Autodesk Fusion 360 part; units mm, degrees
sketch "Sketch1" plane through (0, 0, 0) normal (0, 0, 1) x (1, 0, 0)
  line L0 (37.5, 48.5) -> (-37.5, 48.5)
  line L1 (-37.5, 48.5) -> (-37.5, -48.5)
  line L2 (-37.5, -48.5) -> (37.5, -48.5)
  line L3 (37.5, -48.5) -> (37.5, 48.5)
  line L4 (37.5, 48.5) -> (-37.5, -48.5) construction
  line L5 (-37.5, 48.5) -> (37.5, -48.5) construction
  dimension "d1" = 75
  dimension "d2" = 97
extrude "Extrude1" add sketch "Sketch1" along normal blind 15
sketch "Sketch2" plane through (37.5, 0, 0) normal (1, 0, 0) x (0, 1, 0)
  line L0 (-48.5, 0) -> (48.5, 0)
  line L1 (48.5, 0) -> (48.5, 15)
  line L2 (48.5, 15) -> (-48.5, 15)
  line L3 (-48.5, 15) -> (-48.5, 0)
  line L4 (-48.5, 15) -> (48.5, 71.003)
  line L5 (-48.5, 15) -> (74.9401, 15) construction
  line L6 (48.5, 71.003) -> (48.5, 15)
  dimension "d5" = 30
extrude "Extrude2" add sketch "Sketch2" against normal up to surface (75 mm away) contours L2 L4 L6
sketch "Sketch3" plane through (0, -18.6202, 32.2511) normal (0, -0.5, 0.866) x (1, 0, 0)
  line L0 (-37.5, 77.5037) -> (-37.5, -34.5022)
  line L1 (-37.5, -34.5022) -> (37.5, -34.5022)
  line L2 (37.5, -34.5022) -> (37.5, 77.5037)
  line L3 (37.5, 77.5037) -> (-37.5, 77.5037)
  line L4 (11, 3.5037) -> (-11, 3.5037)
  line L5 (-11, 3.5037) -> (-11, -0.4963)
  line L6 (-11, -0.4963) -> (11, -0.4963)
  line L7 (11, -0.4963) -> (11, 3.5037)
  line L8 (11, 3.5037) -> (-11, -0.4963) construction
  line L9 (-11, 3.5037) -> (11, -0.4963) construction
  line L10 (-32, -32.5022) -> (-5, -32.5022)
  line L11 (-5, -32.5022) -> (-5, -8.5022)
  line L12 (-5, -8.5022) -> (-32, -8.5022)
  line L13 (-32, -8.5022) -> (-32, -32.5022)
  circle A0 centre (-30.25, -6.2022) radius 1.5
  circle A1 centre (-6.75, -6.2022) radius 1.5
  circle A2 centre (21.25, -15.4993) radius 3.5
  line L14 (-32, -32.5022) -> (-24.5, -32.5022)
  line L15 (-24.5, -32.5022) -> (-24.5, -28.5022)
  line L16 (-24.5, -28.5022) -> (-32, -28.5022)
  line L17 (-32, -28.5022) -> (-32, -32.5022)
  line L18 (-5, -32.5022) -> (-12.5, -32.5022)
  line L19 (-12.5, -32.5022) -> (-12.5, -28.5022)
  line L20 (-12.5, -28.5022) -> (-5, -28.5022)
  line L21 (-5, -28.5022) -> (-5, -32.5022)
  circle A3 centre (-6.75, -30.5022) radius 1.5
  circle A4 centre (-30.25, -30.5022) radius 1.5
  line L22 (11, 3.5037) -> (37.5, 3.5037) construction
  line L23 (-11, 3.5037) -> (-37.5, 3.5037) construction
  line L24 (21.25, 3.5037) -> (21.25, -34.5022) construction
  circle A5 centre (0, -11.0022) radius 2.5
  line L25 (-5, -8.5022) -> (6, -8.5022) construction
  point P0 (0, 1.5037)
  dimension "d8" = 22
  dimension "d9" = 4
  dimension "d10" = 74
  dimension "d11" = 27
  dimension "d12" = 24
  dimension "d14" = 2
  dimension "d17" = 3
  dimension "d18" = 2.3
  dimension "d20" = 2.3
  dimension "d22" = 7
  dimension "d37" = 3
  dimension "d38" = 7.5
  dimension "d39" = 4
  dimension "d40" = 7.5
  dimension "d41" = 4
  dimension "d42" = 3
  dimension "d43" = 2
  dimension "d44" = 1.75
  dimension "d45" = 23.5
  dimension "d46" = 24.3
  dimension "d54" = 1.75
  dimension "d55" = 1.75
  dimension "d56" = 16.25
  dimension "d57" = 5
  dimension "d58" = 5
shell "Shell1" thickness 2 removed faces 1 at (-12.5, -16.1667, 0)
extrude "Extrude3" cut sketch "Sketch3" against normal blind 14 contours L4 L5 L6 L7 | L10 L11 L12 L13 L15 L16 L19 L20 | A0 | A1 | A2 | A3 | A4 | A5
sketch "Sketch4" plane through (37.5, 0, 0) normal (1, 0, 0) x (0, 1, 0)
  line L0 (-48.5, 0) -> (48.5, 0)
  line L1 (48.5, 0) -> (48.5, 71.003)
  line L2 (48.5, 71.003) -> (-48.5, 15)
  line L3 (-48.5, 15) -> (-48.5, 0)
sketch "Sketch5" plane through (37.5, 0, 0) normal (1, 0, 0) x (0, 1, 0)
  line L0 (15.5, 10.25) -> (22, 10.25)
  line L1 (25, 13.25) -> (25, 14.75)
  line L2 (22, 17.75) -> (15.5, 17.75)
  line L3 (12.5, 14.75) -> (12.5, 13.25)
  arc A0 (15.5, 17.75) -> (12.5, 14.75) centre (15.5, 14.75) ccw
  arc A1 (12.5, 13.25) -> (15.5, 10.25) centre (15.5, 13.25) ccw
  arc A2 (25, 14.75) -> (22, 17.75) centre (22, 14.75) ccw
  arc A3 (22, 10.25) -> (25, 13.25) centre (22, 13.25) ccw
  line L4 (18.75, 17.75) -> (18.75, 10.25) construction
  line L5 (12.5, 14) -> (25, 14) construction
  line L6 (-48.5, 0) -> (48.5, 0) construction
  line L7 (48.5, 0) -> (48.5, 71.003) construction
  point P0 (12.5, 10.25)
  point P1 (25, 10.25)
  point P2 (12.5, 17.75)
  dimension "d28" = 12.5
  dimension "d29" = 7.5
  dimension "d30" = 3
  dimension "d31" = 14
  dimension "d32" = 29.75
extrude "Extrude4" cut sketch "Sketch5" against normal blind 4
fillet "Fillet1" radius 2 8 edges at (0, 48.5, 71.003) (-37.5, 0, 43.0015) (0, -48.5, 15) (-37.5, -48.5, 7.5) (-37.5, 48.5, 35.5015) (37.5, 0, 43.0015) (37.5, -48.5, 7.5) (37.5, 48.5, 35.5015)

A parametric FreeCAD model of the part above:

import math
import FreeCAD as App
import Part
import Sketcher
Q = App.Units.Quantity


def edges_at(feature, points):
    """Names of the edges that pass closest to the given points."""
    edges = feature.Shape.Edges
    near = lambda p: min(range(len(edges)), key=lambda i: edges[i].distToShape(Part.Vertex(*p))[0])
    return sorted({f"Edge{near(p) + 1}" for p in points})


def faces_at(feature, points):
    """Names of the faces that lie closest to the given points."""
    faces = feature.Shape.Faces
    near = lambda p: min(range(len(faces)), key=lambda i: faces[i].distToShape(Part.Vertex(*p))[0])
    return sorted({f"Face{near(p) + 1}" for p in points})

doc = App.newDocument("Part")
body = doc.addObject("PartDesign::Body", "Body")

sketch1 = body.newObject("Sketcher::SketchObject", "Sketch")
sketch1.AttachmentSupport = (doc.getObject("XY_Plane"), [""])
sketch1.MapMode = "FlatFace"
sketch1.addGeometry([
    Part.LineSegment(App.Vector(38, -48, 0), App.Vector(38, 48, 0)),
    Part.LineSegment(App.Vector(38, 48, 0), App.Vector(-38, 48, 0)),
    Part.LineSegment(App.Vector(-38, 48, 0), App.Vector(-38, -48, 0)),
    Part.LineSegment(App.Vector(-38, -48, 0), App.Vector(38, -48, 0)),
], False)
sketch1.addConstraint([
    Sketcher.Constraint("Coincident", 0, 2, 1, 1),
    Sketcher.Constraint("Coincident", 1, 2, 2, 1),
    Sketcher.Constraint("Coincident", 2, 2, 3, 1),
    Sketcher.Constraint("Coincident", 3, 2, 0, 1),
    Sketcher.Constraint("Vertical", 0),
    Sketcher.Constraint("Horizontal", 1),
    Sketcher.Constraint("Vertical", 2),
    Sketcher.Constraint("Horizontal", 3),
    Sketcher.Constraint("Symmetric", 0, 2, 2, 2, -1, 1),
    Sketcher.Constraint("DistanceX", 1, 2, 1, 1, 75.0),
    Sketcher.Constraint("DistanceY", 0, 1, 0, 2, 97.0),
])
pad1 = body.newObject("PartDesign::Pad", "Pad")
pad1.Profile = sketch1
pad1.Length = 15

sketch2 = body.newObject("Sketcher::SketchObject", "Sketch001")
sketch2.AttachmentSupport = (doc.getObject("YZ_Plane"), [""])
sketch2.MapMode = "FlatFace"
sketch2.AttachmentOffset = App.Placement(App.Vector(0, 0, 37.5), App.Rotation())
sketch2.addGeometry([
    Part.LineSegment(App.Vector(48, 71, 0), App.Vector(-48, 15, 0)),
    Part.LineSegment(App.Vector(-48, 15, 0), App.Vector(48, 15, 0)),
    Part.LineSegment(App.Vector(48, 15, 0), App.Vector(48, 71, 0)),
], False)
sketch2.addConstraint([
    Sketcher.Constraint("Coincident", 0, 2, 1, 1),
    Sketcher.Constraint("Coincident", 1, 2, 2, 1),
    Sketcher.Constraint("Coincident", 2, 2, 0, 1),
    Sketcher.Constraint("Horizontal", 1),
    Sketcher.Constraint("Vertical", 2),
    Sketcher.Constraint("DistanceX", 1, 1, 1, 2, 97.0),
    Sketcher.Constraint("Angle", 0, Q("-150 deg")),
    Sketcher.Constraint("DistanceY", -1, 1, 0, 2, 15.0),
    Sketcher.Constraint("DistanceX", 0, 2, -1, 1, 48.5),
])
pad2 = body.newObject("PartDesign::Pad", "Pad001")
pad2.Profile = sketch2
pad2.Length = 75
pad2.Reversed = True
doc.recompute()

thickness = body.newObject("PartDesign::Thickness", "Thickness")
thickness.Base = (pad2, faces_at(pad2, [(-12.5, -16.167, 0)]))
thickness.Value = 2
thickness.Reversed = True
thickness.Join = "Intersection"

sketch3 = body.newObject("Sketcher::SketchObject", "Sketch002")
sketch3.Placement = App.Placement(App.Vector(0, -18.6202, 32.2511), App.Rotation(App.Vector(1, 0, 0), App.Vector(0, 0.866025404, 0.5), App.Vector(0, -0.5, 0.866025404), "ZXY"))
sketch3.addGeometry([
    Part.LineSegment(App.Vector(11, -0.5, 0), App.Vector(11, 3.5, 0)),
    Part.LineSegment(App.Vector(11, 3.5, 0), App.Vector(-11, 3.5, 0)),
    Part.LineSegment(App.Vector(-11, 3.5, 0), App.Vector(-11, -0.5, 0)),
    Part.LineSegment(App.Vector(-11, -0.5, 0), App.Vector(11, -0.5, 0)),
    Part.LineSegment(App.Vector(-24.5, -28.5, 0), App.Vector(-24.5, -32.5, 0)),
    Part.LineSegment(App.Vector(-24.5, -32.5, 0), App.Vector(-12.5, -32.5, 0)),
    Part.LineSegment(App.Vector(-12.5, -32.5, 0), App.Vector(-12.5, -28.5, 0)),
    Part.LineSegment(App.Vector(-12.5, -28.5, 0), App.Vector(-5, -28.5, 0)),
    Part.LineSegment(App.Vector(-5, -28.5, 0), App.Vector(-5, -8.5, 0)),
    Part.LineSegment(App.Vector(-5, -8.5, 0), App.Vector(-32, -8.5, 0)),
    Part.LineSegment(App.Vector(-32, -8.5, 0), App.Vector(-32, -28.5, 0)),
    Part.LineSegment(App.Vector(-32, -28.5, 0), App.Vector(-24.5, -28.5, 0)),
    Part.Circle(App.Vector(-30.2, -6.2, 0), App.Vector(0, 0, 1), 1.5),
    Part.Circle(App.Vector(-6.8, -6.2, 0), App.Vector(0, 0, 1), 1.5),
    Part.Circle(App.Vector(21.2, -15.5, 0), App.Vector(0, 0, 1), 3.5),
    Part.Circle(App.Vector(-6.8, -30.5, 0), App.Vector(0, 0, 1), 1.5),
    Part.Circle(App.Vector(-30.2, -30.5, 0), App.Vector(0, 0, 1), 1.5),
    Part.Circle(App.Vector(0, -11, 0), App.Vector(0, 0, 1), 2.5),
], False)
sketch3.addConstraint([
    Sketcher.Constraint("Coincident", 0, 2, 1, 1),
    Sketcher.Constraint("Coincident", 1, 2, 2, 1),
    Sketcher.Constraint("Coincident", 2, 2, 3, 1),
    Sketcher.Constraint("Coincident", 3, 2, 0, 1),
    Sketcher.Constraint("Coincident", 4, 2, 5, 1),
    Sketcher.Constraint("Coincident", 5, 2, 6, 1),
    Sketcher.Constraint("Coincident", 6, 2, 7, 1),
    Sketcher.Constraint("Coincident", 7, 2, 8, 1),
    Sketcher.Constraint("Coincident", 8, 2, 9, 1),
    Sketcher.Constraint("Coincident", 9, 2, 10, 1),
    Sketcher.Constraint("Coincident", 10, 2, 11, 1),
    Sketcher.Constraint("Coincident", 11, 2, 4, 1),
    Sketcher.Constraint("Vertical", 0),
    Sketcher.Constraint("Horizontal", 1),
    Sketcher.Constraint("Vertical", 2),
    Sketcher.Constraint("Horizontal", 3),
    Sketcher.Constraint("Vertical", 4),
    Sketcher.Constraint("Horizontal", 5),
    Sketcher.Constraint("Vertical", 6),
    Sketcher.Constraint("Horizontal", 7),
    Sketcher.Constraint("Vertical", 8),
    Sketcher.Constraint("Horizontal", 9),
    Sketcher.Constraint("Vertical", 10),
    Sketcher.Constraint("Horizontal", 11),
    Sketcher.Constraint("Equal", 12, 13),
    Sketcher.Constraint("Equal", 13, 15),
    Sketcher.Constraint("Equal", 15, 16),
    Sketcher.Constraint("PointOnObject", 17, 3, -2),
    Sketcher.Constraint("Horizontal", 12, 3, 13, 3),
    Sketcher.Constraint("Horizontal", 15, 3, 16, 3),
    Sketcher.Constraint("Horizontal", 7, 2, 10, 2),
    Sketcher.Constraint("Vertical", 13, 3, 15, 3),
    Sketcher.Constraint("Vertical", 12, 3, 16, 3),
    Sketcher.Constraint("Equal", 7, 11),
    Sketcher.Constraint("Equal", 2, 4),
    Sketcher.Constraint("Diameter", 12, 3.0),
    Sketcher.Constraint("Diameter", 14, 7.0),
    Sketcher.Constraint("Diameter", 17, 5.0),
    Sketcher.Constraint("DistanceX", 1, 2, 1, 1, 22.0),
    Sketcher.Constraint("DistanceX", 9, 2, 9, 1, 27.0),
    Sketcher.Constraint("DistanceY", 0, 1, 0, 2, 4.0),
    Sketcher.Constraint("DistanceX", 7, 1, 7, 2, 7.5),
    Sketcher.Constraint("DistanceX", 7, 2, -1, 1, 5.0),
    Sketcher.Constraint("DistanceY", 4, 2, 16, 3, 2.0),
    Sketcher.Constraint("DistanceY", 16, 3, 9, 2, 22.0),
    Sketcher.Constraint("DistanceX", 12, 3, 13, 3, 23.5),
    Sketcher.Constraint("DistanceY", 15, 3, 13, 3, 24.3),
    Sketcher.Constraint("DistanceX", 15, 3, 7, 2, 1.75),
    Sketcher.Constraint("DistanceX", -1, 1, 0, 2, 11.0),
    Sketcher.Constraint("DistanceX", 13, 3, 14, 3, 28.0),
    Sketcher.Constraint("DistanceY", 17, 3, 13, 3, 4.8),
    Sketcher.Constraint("DistanceY", 14, 3, 13, 3, 9.297),
    Sketcher.Constraint("DistanceY", 17, 3, 0, 2, 14.506),
    Sketcher.Constraint("DistanceY", 12, 3, -1, 1, 6.2022),
])
pocket1 = body.newObject("PartDesign::Pocket", "Pocket")
pocket1.Profile = sketch3
pocket1.Length = 14

sketch4 = body.newObject("Sketcher::SketchObject", "Sketch003")
sketch4.AttachmentSupport = (doc.getObject("YZ_Plane"), [""])
sketch4.MapMode = "FlatFace"
sketch4.AttachmentOffset = App.Placement(App.Vector(0, 0, 37.5), App.Rotation())
sketch4.addGeometry([
    Part.ArcOfCircle(Part.Circle(App.Vector(15.5, 13.2, 0), App.Vector(0, 0, 1), 3), math.radians(180), math.radians(270)),
    Part.LineSegment(App.Vector(15.5, 10.2, 0), App.Vector(22, 10.2, 0)),
    Part.ArcOfCircle(Part.Circle(App.Vector(22, 13.2, 0), App.Vector(0, 0, 1), 3), math.radians(-90), math.radians(0)),
    Part.LineSegment(App.Vector(25, 13.2, 0), App.Vector(25, 14.8, 0)),
    Part.ArcOfCircle(Part.Circle(App.Vector(22, 14.8, 0), App.Vector(0, 0, 1), 3), math.radians(0), math.radians(90)),
    Part.LineSegment(App.Vector(22, 17.8, 0), App.Vector(15.5, 17.8, 0)),
    Part.ArcOfCircle(Part.Circle(App.Vector(15.5, 14.8, 0), App.Vector(0, 0, 1), 3), math.radians(90), math.radians(180)),
    Part.LineSegment(App.Vector(12.5, 14.8, 0), App.Vector(12.5, 13.2, 0)),
], False)
sketch4.addConstraint([
    Sketcher.Constraint("Tangent", 0, 2, 1, 1),
    Sketcher.Constraint("Tangent", 1, 2, 2, 1),
    Sketcher.Constraint("Tangent", 2, 2, 3, 1),
    Sketcher.Constraint("Tangent", 3, 2, 4, 1),
    Sketcher.Constraint("Tangent", 4, 2, 5, 1),
    Sketcher.Constraint("Tangent", 5, 2, 6, 1),
    Sketcher.Constraint("Tangent", 6, 2, 7, 1),
    Sketcher.Constraint("Tangent", 7, 2, 0, 1),
    Sketcher.Constraint("Horizontal", 1),
    Sketcher.Constraint("Vertical", 3),
    Sketcher.Constraint("Horizontal", 5),
    Sketcher.Constraint("Vertical", 7),
    Sketcher.Constraint("Equal", 0, 2),
    Sketcher.Constraint("Equal", 2, 4),
    Sketcher.Constraint("Equal", 4, 6),
    Sketcher.Constraint("Radius", 0, 3.0),
    Sketcher.Constraint("DistanceX", -1, 1, 6, 2, 12.5),
    Sketcher.Constraint("DistanceY", 0, 2, 5, 2, 7.5),
    Sketcher.Constraint("DistanceX", 1, 1, 1, 2, 6.5),
    Sketcher.Constraint("DistanceY", -1, 1, 0, 3, 13.25),
])
pocket2 = body.newObject("PartDesign::Pocket", "Pocket001")
pocket2.Profile = sketch4
pocket2.Length = 4
doc.recompute()

fillet = body.newObject("PartDesign::Fillet", "Fillet")
fillet.Base = (pocket2, edges_at(pocket2, [
    (0, 48.5, 71.003),
    (-37.5, 0, 43.002),
    (0, -48.5, 15),
    (-37.5, -48.5, 7.5),
    (-37.5, 48.5, 35.502),
    (37.5, 0, 43.002),
    (37.5, -48.5, 7.5),
    (37.5, 48.5, 35.502),
]))
fillet.Radius = 2

doc.recompute()
